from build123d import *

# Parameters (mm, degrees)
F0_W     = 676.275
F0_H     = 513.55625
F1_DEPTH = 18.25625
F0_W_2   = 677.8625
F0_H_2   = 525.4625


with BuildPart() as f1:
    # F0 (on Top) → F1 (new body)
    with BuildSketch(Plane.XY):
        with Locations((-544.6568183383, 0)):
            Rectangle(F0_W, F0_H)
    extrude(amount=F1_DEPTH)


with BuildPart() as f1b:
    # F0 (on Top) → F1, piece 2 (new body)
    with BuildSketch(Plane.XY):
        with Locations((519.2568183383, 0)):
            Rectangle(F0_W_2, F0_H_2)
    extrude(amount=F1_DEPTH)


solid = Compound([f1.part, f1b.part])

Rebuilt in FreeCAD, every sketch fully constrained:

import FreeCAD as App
import Part
import Sketcher
Q = App.Units.Quantity

doc = App.newDocument("Part")
body = doc.addObject("PartDesign::Body", "Body")

sketch1 = body.newObject("Sketcher::SketchObject", "Sketch")
sketch1.AttachmentSupport = (doc.getObject("XY_Plane"), [""])
sketch1.MapMode = "FlatFace"
sketch1.addGeometry(Part.LineSegment(App.Vector(-883, 257, 0), App.Vector(-883, -257, 0)), False)
sketch1.addGeometry(Part.LineSegment(App.Vector(-883, -257, 0), App.Vector(-207, -257, 0)), False)
sketch1.addGeometry(Part.LineSegment(App.Vector(-207, -257, 0), App.Vector(-207, 257, 0)), False)
sketch1.addGeometry(Part.LineSegment(App.Vector(-207, 257, 0), App.Vector(-883, 257, 0)), False)
sketch1.addConstraint(Sketcher.Constraint("Coincident", 0, 2, 1, 1))
sketch1.addConstraint(Sketcher.Constraint("Coincident", 1, 2, 2, 1))
sketch1.addConstraint(Sketcher.Constraint("Coincident", 2, 2, 3, 1))
sketch1.addConstraint(Sketcher.Constraint("Coincident", 3, 2, 0, 1))
sketch1.addConstraint(Sketcher.Constraint("Vertical", 0))
sketch1.addConstraint(Sketcher.Constraint("Horizontal", 1))
sketch1.addConstraint(Sketcher.Constraint("Vertical", 2))
sketch1.addConstraint(Sketcher.Constraint("Horizontal", 3))
sketch1.addConstraint(Sketcher.Constraint("DistanceX", 1, 1, 1, 2, Q("26.625 in")))
sketch1.addConstraint(Sketcher.Constraint("DistanceY", 0, 2, 0, 1, Q("20.21875 in")))
sketch1.addConstraint(Sketcher.Constraint("DistanceY", 0, 2, -1, 1, Q("10.109375 in")))
sketch1.addConstraint(Sketcher.Constraint("DistanceX", 0, 2, -1, 1, 882.794318))
pad1 = body.newObject("PartDesign::Pad", "Pad")
pad1.Profile = sketch1
pad1.Length = Q("0.71875 in")
body2 = doc.addObject("PartDesign::Body", "Body001")

sketch2 = body2.newObject("Sketcher::SketchObject", "Sketch001")
sketch2.AttachmentSupport = (doc.getObject("XY_Plane001"), [""])
sketch2.MapMode = "FlatFace"
sketch2.addGeometry(Part.LineSegment(App.Vector(180, 263, 0), App.Vector(180, -263, 0)), False)
sketch2.addGeometry(Part.LineSegment(App.Vector(180, -263, 0), App.Vector(858, -263, 0)), False)
sketch2.addGeometry(Part.LineSegment(App.Vector(858, -263, 0), App.Vector(858, 263, 0)), False)
sketch2.addGeometry(Part.LineSegment(App.Vector(858, 263, 0), App.Vector(180, 263, 0)), False)
sketch2.addConstraint(Sketcher.Constraint("Coincident", 0, 2, 1, 1))
sketch2.addConstraint(Sketcher.Constraint("Coincident", 1, 2, 2, 1))
sketch2.addConstraint(Sketcher.Constraint("Coincident", 2, 2, 3, 1))
sketch2.addConstraint(Sketcher.Constraint("Coincident", 3, 2, 0, 1))
sketch2.addConstraint(Sketcher.Constraint("Vertical", 0))
sketch2.addConstraint(Sketcher.Constraint("Horizontal", 1))
sketch2.addConstraint(Sketcher.Constraint("Vertical", 2))
sketch2.addConstraint(Sketcher.Constraint("Horizontal", 3))
sketch2.addConstraint(Sketcher.Constraint("DistanceX", 1, 1, 1, 2, Q("26.6875 in")))
sketch2.addConstraint(Sketcher.Constraint("DistanceY", 0, 2, 0, 1, Q("20.6875 in")))
sketch2.addConstraint(Sketcher.Constraint("DistanceY", 0, 2, -1, 1, Q("10.34375 in")))
sketch2.addConstraint(Sketcher.Constraint("DistanceX", -1, 1, 0, 2, 180.325568))
pad2 = body2.newObject("PartDesign::Pad", "Pad001")
pad2.Profile = sketch2
pad2.Length = Q("0.71875 in")

doc.recompute()
